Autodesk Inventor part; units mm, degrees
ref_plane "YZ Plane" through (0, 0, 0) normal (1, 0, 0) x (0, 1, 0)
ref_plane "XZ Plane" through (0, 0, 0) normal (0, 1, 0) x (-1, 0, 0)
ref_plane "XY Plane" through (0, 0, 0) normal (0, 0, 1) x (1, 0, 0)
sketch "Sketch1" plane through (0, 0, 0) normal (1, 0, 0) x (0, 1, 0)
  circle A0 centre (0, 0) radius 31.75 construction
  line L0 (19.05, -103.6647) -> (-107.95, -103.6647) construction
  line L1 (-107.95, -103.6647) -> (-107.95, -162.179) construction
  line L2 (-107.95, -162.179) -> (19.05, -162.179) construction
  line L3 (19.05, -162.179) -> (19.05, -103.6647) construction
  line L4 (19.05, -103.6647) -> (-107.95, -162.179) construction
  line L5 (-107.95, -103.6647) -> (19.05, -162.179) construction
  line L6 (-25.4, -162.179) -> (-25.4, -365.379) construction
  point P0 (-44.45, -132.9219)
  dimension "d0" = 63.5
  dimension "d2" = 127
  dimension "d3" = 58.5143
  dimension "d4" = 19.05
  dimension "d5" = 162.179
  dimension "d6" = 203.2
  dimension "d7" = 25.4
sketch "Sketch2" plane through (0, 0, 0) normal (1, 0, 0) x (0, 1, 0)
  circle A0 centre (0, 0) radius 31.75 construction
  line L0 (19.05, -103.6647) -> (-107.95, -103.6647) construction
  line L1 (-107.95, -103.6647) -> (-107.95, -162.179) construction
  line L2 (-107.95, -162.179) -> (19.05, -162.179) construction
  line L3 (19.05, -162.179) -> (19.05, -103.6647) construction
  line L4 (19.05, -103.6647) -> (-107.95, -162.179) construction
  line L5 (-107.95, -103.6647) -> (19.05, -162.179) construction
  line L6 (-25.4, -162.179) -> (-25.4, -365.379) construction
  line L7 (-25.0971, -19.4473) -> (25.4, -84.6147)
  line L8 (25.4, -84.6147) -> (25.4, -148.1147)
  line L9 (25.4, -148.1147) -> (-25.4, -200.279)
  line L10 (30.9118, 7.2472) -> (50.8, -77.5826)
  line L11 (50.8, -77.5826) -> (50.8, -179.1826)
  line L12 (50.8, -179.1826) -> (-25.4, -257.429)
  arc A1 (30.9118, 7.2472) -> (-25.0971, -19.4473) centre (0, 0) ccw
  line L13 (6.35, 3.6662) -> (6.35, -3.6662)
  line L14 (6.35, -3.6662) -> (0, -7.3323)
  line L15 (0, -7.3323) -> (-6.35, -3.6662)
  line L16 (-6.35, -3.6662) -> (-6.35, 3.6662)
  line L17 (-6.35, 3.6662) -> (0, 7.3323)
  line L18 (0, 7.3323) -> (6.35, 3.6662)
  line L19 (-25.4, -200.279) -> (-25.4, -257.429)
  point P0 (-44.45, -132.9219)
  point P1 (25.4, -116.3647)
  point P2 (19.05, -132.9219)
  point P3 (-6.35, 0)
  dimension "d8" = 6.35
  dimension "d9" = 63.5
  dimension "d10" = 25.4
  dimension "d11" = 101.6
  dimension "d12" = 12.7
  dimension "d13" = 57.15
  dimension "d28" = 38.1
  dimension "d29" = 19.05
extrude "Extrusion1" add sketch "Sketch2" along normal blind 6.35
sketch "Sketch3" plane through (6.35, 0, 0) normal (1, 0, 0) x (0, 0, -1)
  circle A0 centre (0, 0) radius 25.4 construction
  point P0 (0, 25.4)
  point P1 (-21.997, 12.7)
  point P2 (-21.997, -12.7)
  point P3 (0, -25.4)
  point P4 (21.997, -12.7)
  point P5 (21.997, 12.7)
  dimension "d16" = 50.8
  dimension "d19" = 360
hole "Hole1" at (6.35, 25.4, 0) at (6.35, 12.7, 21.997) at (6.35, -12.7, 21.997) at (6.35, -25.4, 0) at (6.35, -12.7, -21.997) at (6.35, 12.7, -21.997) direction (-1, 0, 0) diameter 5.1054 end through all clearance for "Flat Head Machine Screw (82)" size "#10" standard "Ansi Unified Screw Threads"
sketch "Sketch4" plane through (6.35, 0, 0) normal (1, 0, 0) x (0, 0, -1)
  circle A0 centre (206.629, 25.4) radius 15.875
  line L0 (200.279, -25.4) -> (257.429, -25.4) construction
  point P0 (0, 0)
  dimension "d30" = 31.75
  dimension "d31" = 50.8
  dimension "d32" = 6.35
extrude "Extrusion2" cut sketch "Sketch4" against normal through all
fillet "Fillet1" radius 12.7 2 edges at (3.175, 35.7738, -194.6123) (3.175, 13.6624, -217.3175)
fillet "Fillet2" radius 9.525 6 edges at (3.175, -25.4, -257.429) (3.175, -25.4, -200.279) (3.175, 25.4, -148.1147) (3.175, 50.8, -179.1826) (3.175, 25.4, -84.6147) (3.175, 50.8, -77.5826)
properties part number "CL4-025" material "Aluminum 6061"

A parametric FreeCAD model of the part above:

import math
import FreeCAD as App
import Part
import Sketcher

V = App.Vector
Q = App.Units.Quantity


def edges_at(feature, points):
    """Names of the edges that pass closest to the given points."""
    edges = feature.Shape.Edges
    near = lambda p: min(range(len(edges)), key=lambda i: edges[i].distToShape(Part.Vertex(*p))[0])
    return sorted({f"Edge{near(p) + 1}" for p in points})


def add_polygon(sketch, points):
    """Adds a closed chain of lines whose ends are joined by coincident constraints."""
    first, n = sketch.GeometryCount, len(points)
    for a, b in zip(points, points[1:] + points[:1]):
        sketch.addGeometry(Part.LineSegment(App.Vector(*a, 0), App.Vector(*b, 0)), False)
    for i in range(n):
        sketch.addConstraint(Sketcher.Constraint("Coincident", first + i, 2, first + (i + 1) % n, 1))

doc = App.newDocument("Part")
body = doc.addObject("PartDesign::Body", "Body")

# Sketch on YZ plane
sketch1 = body.newObject("Sketcher::SketchObject", "Sketch")
sketch1.AttachmentSupport = (doc.getObject("YZ_Plane"), [""])
sketch1.MapMode = "FlatFace"
sketch1.addGeometry(Part.ArcOfCircle(Part.Circle(V(0, 0, 0), V(0, 0, 1), 31.749981), math.radians(13.194558), math.radians(217.771473)), False)  # 0
sketch1.addGeometry(Part.LineSegment(V(-25.0971, -19.4473, 0), V(25.4, -84.6147, 0)), False)  # 1
sketch1.addGeometry(Part.LineSegment(V(25.4, -84.6147, 0), V(25.4, -148.1147, 0)), False)  # 2
sketch1.addGeometry(Part.LineSegment(V(25.4, -148.1147, 0), V(-25.4, -200.279, 0)), False)  # 3
sketch1.addGeometry(Part.LineSegment(V(-25.4, -200.279, 0), V(-25.4, -257.429, 0)), False)  # 4
sketch1.addGeometry(Part.LineSegment(V(-25.4, -257.429, 0), V(50.8, -179.1826, 0)), False)  # 5
sketch1.addGeometry(Part.LineSegment(V(50.8, -179.1826, 0), V(50.8, -77.5826, 0)), False)  # 6
sketch1.addGeometry(Part.LineSegment(V(50.8, -77.5826, 0), V(30.9118, 7.2472, 0)), False)  # 7
add_polygon(sketch1, [(0, 7.3323), (6.35, 3.6662), (6.35, -3.6662), (0, -7.3323), (-6.35, -3.6662), (-6.35, 3.6662)])  # lines 8-13
sketch1.addConstraint([
    Sketcher.Constraint("Tangent", 0, 2, 1, 1),
    Sketcher.Constraint("Coincident", 1, 2, 2, 1),
    Sketcher.Constraint("Coincident", 2, 2, 3, 1),
    Sketcher.Constraint("Coincident", 3, 2, 4, 1),
    Sketcher.Constraint("Coincident", 4, 2, 5, 1),
    Sketcher.Constraint("Coincident", 5, 2, 6, 1),
    Sketcher.Constraint("Coincident", 6, 2, 7, 1),
    Sketcher.Constraint("Tangent", 7, 2, 0, 1),
    Sketcher.Constraint("Vertical", 2),
    Sketcher.Constraint("Vertical", 4),
    Sketcher.Constraint("Vertical", 6),
    Sketcher.Constraint("Vertical", 9),
    Sketcher.Constraint("Vertical", 12),
    Sketcher.Constraint("Coincident", 0, 3, -1, 1),
    Sketcher.Constraint("Symmetric", 8, 2, 11, 2, -1, 1),
    Sketcher.Constraint("Symmetric", 10, 2, 13, 2, -1, 1),
    Sketcher.Constraint("PointOnObject", 10, 2, -2),
    Sketcher.Constraint("Parallel", 3, 5),
    Sketcher.Constraint("Parallel", 10, 13),
    Sketcher.Constraint("Horizontal", 9, 2, 11, 2),
    Sketcher.Constraint("DistanceY", 6, 1, 6, 2, Q("4 in")),
    Sketcher.Constraint("Radius", 0, Q("1.25 in")),
    Sketcher.Constraint("DistanceY", 2, 2, 2, 1, Q("2.5 in")),
    Sketcher.Constraint("DistanceX", -1, 1, 1, 2, Q("1 in")),
    Sketcher.Constraint("DistanceX", 3, 2, -1, 1, Q("1 in")),
    Sketcher.Constraint("DistanceX", 2, 2, 5, 2, Q("1 in")),
    Sketcher.Constraint("DistanceY", 4, 2, 4, 1, Q("2.25 in")),
    Sketcher.Constraint("DistanceX", 11, 2, 9, 2, Q("0.5 in")),
    Sketcher.Constraint("Angle", 8, Q("-29.9995 deg")),
    Sketcher.Constraint("Angle", 3, Q("-134.2409 deg")),
    Sketcher.Constraint("DistanceY", 3, 2, -1, 1, Q("7.885 in")),
    Sketcher.Constraint("DistanceY", 10, 2, 8, 2, Q("0.433 in")),
])
pad1 = body.newObject("PartDesign::Pad", "Pad")
pad1.Profile = sketch1
pad1.Length = Q("0.25 in")

# Sketch on YZ plane
sketch2 = body.newObject("Sketcher::SketchObject", "Sketch001")
sketch2.AttachmentSupport = (doc.getObject("YZ_Plane"), [""])
sketch2.MapMode = "FlatFace"
sketch2.AttachmentOffset = App.Placement(V(0, 0, 0.25 * 25.4), App.Rotation())
sketch2.addGeometry([
    Part.Circle(V(25.4, 0, 0), V(0, 0, 1), 2.5527),  # 0
    Part.Circle(V(12.7, 21.997, 0), V(0, 0, 1), 2.5527),  # 1
    Part.Circle(V(-12.7, 21.997, 0), V(0, 0, 1), 2.5527),  # 2
    Part.Circle(V(-25.4, 0, 0), V(0, 0, 1), 2.5527),  # 3
    Part.Circle(V(-12.7, -21.997, 0), V(0, 0, 1), 2.5527),  # 4
    Part.Circle(V(12.7, -21.997, 0), V(0, 0, 1), 2.5527),  # 5
], False)
sketch2.addConstraint([
    Sketcher.Constraint("Equal", 0, 1),
    Sketcher.Constraint("Equal", 1, 2),
    Sketcher.Constraint("Equal", 2, 3),
    Sketcher.Constraint("Equal", 3, 4),
    Sketcher.Constraint("Equal", 4, 5),
    Sketcher.Constraint("Symmetric", 0, 3, 3, 3, -1, 1),
    Sketcher.Constraint("Symmetric", 1, 3, 4, 3, -1, 1),
    Sketcher.Constraint("Symmetric", 2, 3, 5, 3, -1, 1),
    Sketcher.Constraint("Symmetric", 1, 3, 2, 3, -2),
    Sketcher.Constraint("PointOnObject", 0, 3, -1),
    Sketcher.Constraint("Diameter", 0, Q("0.201 in")),
    Sketcher.Constraint("DistanceX", -1, 1, 0, 3, Q("1 in")),
    Sketcher.Constraint("DistanceX", 2, 3, 1, 3, Q("1 in")),
    Sketcher.Constraint("DistanceY", -1, 1, 1, 3, Q("21.997 mm")),
])
doc.recompute()
hole = body.newObject("PartDesign::Hole", "Hole")
hole.Profile = sketch2
hole.ThreadType = "None"
hole.Diameter = Q("0.201 in")
hole.DepthType = "ThroughAll"

# Sketch on YZ plane
sketch3 = body.newObject("Sketcher::SketchObject", "Sketch002")
sketch3.AttachmentSupport = (doc.getObject("YZ_Plane"), [""])
sketch3.MapMode = "FlatFace"
sketch3.AttachmentOffset = App.Placement(V(0, 0, 0.25 * 25.4), App.Rotation())
sketch3.addGeometry(Part.Circle(V(25.4, -206.629, 0), V(0, 0, 1), 15.875), False)
sketch3.addConstraint([
    Sketcher.Constraint("Diameter", 0, Q("1.25 in")),
    Sketcher.Constraint("DistanceX", -1, 1, 0, 3, Q("1 in")),
    Sketcher.Constraint("DistanceY", 0, 3, -1, 1, Q("8.135 in")),
])
pocket1 = body.newObject("PartDesign::Pocket", "Pocket")
pocket1.Profile = sketch3
pocket1.Type = "ThroughAll"
doc.recompute()

fillet = body.newObject("PartDesign::Fillet", "Fillet")
fillet.Base = (pocket1, edges_at(pocket1, [(3.175, 35.774, -194.612), (3.175, 13.662, -217.317)]))
fillet.Radius = Q("0.5 in")
doc.recompute()

fillet2 = body.newObject("PartDesign::Fillet", "Fillet001")
fillet2.Base = (fillet, edges_at(fillet, [
    (3.175, -25.4, -257.429),
    (3.175, -25.4, -200.279),
    (3.175, 25.4, -148.115),
    (3.175, 50.8, -179.183),
    (3.175, 25.4, -84.615),
    (3.175, 50.8, -77.583),
]))
fillet2.Radius = Q("0.375 in")

doc.recompute()
